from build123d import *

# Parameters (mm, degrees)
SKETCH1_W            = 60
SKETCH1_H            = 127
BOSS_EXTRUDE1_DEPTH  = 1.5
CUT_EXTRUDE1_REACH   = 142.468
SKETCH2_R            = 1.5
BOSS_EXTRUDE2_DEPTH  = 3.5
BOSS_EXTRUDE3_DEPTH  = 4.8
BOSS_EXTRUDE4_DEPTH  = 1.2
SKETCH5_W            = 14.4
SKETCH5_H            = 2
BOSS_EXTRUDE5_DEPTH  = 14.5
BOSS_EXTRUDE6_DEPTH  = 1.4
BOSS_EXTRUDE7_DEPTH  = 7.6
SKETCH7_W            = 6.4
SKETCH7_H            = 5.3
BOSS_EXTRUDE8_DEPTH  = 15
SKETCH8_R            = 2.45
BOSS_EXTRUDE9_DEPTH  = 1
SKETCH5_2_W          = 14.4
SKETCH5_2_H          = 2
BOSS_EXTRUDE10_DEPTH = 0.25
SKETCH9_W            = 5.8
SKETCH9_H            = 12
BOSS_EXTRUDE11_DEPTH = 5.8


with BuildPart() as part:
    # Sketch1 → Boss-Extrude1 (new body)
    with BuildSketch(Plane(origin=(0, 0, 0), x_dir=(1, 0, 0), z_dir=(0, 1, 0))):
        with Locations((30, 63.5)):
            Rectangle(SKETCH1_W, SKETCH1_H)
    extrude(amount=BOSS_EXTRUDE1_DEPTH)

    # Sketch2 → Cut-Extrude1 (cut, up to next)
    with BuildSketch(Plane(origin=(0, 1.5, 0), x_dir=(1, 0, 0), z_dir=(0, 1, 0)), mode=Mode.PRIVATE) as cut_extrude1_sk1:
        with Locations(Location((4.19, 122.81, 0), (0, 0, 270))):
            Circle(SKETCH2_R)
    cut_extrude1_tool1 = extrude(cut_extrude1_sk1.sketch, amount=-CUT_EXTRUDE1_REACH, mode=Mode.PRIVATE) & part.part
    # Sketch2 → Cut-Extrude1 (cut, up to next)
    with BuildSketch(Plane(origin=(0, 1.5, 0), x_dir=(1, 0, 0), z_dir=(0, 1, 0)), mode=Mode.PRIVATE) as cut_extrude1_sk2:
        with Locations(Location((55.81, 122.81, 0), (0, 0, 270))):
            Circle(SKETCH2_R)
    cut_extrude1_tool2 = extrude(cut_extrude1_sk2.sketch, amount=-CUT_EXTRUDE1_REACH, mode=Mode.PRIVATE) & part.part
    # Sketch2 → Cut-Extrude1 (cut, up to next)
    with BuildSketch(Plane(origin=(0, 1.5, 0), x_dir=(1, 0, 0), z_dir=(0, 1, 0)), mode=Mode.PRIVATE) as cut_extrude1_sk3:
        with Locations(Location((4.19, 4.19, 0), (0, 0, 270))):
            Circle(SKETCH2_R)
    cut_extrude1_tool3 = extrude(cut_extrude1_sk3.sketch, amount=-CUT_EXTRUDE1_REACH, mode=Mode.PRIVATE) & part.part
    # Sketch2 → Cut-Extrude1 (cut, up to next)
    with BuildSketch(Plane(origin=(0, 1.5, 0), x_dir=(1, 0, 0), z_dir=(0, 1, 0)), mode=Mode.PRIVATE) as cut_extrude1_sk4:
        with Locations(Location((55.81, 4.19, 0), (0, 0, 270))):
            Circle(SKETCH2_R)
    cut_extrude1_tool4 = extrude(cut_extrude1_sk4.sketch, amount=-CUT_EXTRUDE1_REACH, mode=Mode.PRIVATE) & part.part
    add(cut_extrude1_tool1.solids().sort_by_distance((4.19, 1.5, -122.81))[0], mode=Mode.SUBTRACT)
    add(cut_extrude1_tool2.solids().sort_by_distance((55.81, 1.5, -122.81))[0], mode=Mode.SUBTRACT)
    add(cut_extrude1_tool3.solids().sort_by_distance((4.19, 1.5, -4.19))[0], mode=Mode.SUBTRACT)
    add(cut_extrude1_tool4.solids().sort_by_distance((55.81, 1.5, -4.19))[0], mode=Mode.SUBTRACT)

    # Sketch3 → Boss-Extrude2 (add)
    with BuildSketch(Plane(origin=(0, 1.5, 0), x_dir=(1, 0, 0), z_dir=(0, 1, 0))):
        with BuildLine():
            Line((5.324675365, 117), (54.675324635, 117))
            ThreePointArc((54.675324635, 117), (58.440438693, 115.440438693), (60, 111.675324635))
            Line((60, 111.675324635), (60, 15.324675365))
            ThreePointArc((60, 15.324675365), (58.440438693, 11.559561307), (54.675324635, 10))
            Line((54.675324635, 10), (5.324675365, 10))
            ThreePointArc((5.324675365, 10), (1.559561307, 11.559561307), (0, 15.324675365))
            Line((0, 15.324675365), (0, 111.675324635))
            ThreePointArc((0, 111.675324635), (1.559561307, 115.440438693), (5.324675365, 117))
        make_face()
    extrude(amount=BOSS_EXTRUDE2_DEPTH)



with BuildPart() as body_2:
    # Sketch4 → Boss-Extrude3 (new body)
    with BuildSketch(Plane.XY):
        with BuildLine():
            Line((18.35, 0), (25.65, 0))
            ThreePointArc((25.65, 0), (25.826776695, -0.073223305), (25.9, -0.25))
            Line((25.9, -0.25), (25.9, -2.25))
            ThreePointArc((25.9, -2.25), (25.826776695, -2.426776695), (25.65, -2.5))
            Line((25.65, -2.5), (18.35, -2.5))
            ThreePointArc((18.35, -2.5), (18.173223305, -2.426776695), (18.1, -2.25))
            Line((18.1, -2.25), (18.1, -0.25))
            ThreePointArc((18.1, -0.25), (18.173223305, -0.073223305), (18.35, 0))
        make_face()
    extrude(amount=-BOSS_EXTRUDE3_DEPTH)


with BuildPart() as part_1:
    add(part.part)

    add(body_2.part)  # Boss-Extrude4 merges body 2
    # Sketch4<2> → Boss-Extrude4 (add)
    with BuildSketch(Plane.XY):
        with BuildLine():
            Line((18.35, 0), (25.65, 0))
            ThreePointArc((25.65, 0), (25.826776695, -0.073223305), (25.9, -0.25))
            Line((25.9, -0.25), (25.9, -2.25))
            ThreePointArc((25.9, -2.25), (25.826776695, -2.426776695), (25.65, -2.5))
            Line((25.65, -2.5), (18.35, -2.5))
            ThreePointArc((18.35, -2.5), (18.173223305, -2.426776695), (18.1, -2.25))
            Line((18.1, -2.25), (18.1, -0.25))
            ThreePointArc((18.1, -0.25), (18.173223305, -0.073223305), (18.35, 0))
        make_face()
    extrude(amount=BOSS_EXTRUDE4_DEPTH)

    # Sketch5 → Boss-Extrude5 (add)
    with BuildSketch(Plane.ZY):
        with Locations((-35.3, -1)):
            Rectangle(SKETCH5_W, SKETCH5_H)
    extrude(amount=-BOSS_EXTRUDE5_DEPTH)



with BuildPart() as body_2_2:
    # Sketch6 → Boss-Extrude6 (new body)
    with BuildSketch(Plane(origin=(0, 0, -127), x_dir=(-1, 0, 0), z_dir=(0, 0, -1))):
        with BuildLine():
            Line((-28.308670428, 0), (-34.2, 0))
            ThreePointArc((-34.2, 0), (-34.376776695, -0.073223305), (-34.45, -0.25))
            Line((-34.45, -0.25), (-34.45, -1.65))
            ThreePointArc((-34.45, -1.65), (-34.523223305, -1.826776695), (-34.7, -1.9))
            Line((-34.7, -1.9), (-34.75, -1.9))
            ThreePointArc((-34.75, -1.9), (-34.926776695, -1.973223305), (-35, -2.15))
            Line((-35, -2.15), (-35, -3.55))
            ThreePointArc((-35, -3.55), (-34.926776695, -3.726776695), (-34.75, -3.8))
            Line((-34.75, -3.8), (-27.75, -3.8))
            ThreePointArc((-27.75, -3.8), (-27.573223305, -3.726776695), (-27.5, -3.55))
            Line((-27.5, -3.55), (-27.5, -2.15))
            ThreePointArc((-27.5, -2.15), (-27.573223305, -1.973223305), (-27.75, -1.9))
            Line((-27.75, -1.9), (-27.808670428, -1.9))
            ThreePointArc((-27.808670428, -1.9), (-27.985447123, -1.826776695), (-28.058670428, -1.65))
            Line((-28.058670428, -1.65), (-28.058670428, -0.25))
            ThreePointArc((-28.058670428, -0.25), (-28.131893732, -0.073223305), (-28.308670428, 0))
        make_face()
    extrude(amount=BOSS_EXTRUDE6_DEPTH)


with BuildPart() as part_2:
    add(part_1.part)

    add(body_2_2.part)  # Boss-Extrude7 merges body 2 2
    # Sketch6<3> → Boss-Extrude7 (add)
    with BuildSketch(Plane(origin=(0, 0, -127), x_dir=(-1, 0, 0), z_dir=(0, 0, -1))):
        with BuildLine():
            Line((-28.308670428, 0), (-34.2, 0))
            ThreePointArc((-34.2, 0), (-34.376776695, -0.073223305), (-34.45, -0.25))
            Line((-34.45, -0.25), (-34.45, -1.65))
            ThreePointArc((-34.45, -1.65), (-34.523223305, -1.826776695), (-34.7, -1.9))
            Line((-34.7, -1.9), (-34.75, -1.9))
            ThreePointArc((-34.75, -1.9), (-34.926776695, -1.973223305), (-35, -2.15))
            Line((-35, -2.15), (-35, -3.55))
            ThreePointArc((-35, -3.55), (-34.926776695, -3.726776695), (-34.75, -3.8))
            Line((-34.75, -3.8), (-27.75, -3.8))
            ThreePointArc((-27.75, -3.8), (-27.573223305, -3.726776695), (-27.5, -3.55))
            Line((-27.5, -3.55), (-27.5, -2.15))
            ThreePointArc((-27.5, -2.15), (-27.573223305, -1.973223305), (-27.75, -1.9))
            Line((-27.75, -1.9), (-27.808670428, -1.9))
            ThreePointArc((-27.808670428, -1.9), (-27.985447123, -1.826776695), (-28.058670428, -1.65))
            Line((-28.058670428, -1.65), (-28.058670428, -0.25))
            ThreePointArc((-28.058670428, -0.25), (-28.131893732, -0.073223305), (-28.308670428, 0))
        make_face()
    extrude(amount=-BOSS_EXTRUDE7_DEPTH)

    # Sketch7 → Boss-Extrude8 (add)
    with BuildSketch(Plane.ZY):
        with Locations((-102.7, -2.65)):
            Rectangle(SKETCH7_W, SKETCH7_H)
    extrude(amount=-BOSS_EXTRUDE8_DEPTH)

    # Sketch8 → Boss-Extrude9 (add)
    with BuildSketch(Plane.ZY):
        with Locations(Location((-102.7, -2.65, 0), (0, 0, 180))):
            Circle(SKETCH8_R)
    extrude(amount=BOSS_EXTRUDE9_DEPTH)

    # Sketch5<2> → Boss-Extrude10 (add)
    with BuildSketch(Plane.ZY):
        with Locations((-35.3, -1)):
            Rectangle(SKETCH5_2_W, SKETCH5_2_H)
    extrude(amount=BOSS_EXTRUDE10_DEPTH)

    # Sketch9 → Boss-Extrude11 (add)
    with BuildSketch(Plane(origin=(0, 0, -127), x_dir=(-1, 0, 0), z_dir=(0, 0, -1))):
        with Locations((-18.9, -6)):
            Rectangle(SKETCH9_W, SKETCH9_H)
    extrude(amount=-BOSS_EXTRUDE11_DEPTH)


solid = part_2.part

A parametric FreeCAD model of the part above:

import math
import FreeCAD as App
import Part
import Sketcher

V = App.Vector

doc = App.newDocument("Part")
params = doc.addObject("Spreadsheet::Sheet", "Params")
for row, (alias, value) in enumerate([
    ("sketch1_width", "60 mm"),
    ("sketch1_height", "127 mm"),
    ("pad1_length", "1.5 mm"),
    ("sketch2_diameter", "3 mm"),
    ("sketch3_diameter", "3 mm"),
    ("sketch4_diameter", "3 mm"),
    ("sketch5_diameter", "3 mm"),
    ("pad2_length", "3.5 mm"),
    ("sketch7_height", "2 mm"),
    ("sketch7_radius", "0.25 mm"),
    ("sketch7_width", "7.3 mm"),
    ("pad3_length", "4.8 mm"),
    ("sketch8_height", "2 mm"),
    ("sketch8_radius", "0.25 mm"),
    ("sketch8_width", "7.3 mm"),
    ("pad4_length", "1.2 mm"),
    ("sketch9_width", "2 mm"),
    ("sketch9_height", "14.4 mm"),
    ("pad5_length", "14.5 mm"),
    ("sketch10_width", "7 mm"),
    ("sketch10_radius", "0.25 mm"),
    ("sketch10_height", "1.4 mm"),
    ("sketch10_width2", "0.05 mm"),
    ("pad6_length", "1.4 mm"),
    ("sketch11_width", "7 mm"),
    ("sketch11_radius", "0.25 mm"),
    ("sketch11_height", "1.4 mm"),
    ("sketch11_width2", "0.05 mm"),
    ("pad7_length", "7.6 mm"),
    ("sketch12_width", "5.3 mm"),
    ("sketch12_height", "6.4 mm"),
    ("pad8_length", "15 mm"),
    ("sketch13_diameter", "4.9 mm"),
    ("pad9_length", "1 mm"),
    ("sketch14_width", "2 mm"),
    ("sketch14_height", "14.4 mm"),
    ("pad10_length", "0.25 mm"),
    ("sketch15_height", "12 mm"),
    ("sketch15_width", "5.8 mm"),
    ("pad11_length", "5.8 mm"),
], start=1):
    params.set(f"A{row}", alias)
    params.set(f"B{row}", "=" + value)
    params.setAlias(f"B{row}", alias)

body = doc.addObject("PartDesign::Body", "Body")

# Sketch on XZ plane
sketch1 = doc.addObject("Sketcher::SketchObject", "Sketch")
body.addObject(sketch1)
sketch1.AttachmentSupport = (doc.XZ_Plane, [""])
sketch1.MapMode = "FlatFace"
sketch1.addGeometry(Part.LineSegment(V(0, -127, 0), V(0, 0, 0)), False)
sketch1.addGeometry(Part.LineSegment(V(0, 0, 0), V(60, 0, 0)), False)
sketch1.addGeometry(Part.LineSegment(V(60, 0, 0), V(60, -127, 0)), False)
sketch1.addGeometry(Part.LineSegment(V(60, -127, 0), V(0, -127, 0)), False)
sketch1.addConstraint(Sketcher.Constraint("Coincident", 0, 2, 1, 1))
sketch1.addConstraint(Sketcher.Constraint("Coincident", 1, 2, 2, 1))
sketch1.addConstraint(Sketcher.Constraint("Coincident", 2, 2, 3, 1))
sketch1.addConstraint(Sketcher.Constraint("Coincident", 3, 2, 0, 1))
sketch1.addConstraint(Sketcher.Constraint("Vertical", 0))
sketch1.addConstraint(Sketcher.Constraint("Horizontal", 1))
sketch1.addConstraint(Sketcher.Constraint("Vertical", 2))
sketch1.addConstraint(Sketcher.Constraint("Horizontal", 3))
sketch1.addConstraint(Sketcher.Constraint("Coincident", 0, 2, -1, 1))
sketch1.addConstraint(Sketcher.Constraint("DistanceX", 1, 1, 1, 2, 60.0))
sketch1.addConstraint(Sketcher.Constraint("DistanceY", 0, 1, 0, 2, 127.0))
sketch1.setExpression("Constraints[9]", "Params.sketch1_width")
sketch1.setExpression("Constraints[10]", "Params.sketch1_height")
pad1 = doc.addObject("PartDesign::Pad", "Pad")
body.addObject(pad1)
pad1.Profile = sketch1
pad1.setExpression("Length", "Params.pad1_length")
pad1.Reversed = True

# Sketch on XZ plane
sketch2 = doc.addObject("Sketcher::SketchObject", "Sketch001")
body.addObject(sketch2)
sketch2.AttachmentSupport = (doc.XZ_Plane, [""])
sketch2.MapMode = "FlatFace"
sketch2.AttachmentOffset = App.Placement(V(0, 0, -1.5), App.Rotation())
sketch2.addGeometry(Part.Circle(V(4.2, -122.8, 0), V(0, 0, 1), 1.5), False)
sketch2.addConstraint(Sketcher.Constraint("Diameter", 0, 3.0))
sketch2.addConstraint(Sketcher.Constraint("DistanceX", -1, 1, 0, 3, 4.19))
sketch2.addConstraint(Sketcher.Constraint("DistanceY", 0, 3, -1, 1, 122.81))
sketch2.setExpression("Constraints[0]", "Params.sketch2_diameter")
pocket1 = doc.addObject("PartDesign::Pocket", "Pocket")
body.addObject(pocket1)
pocket1.Profile = sketch2
pocket1.Type = "UpToFirst"
pocket1.Reversed = True

# Sketch on XZ plane
sketch3 = doc.addObject("Sketcher::SketchObject", "Sketch002")
body.addObject(sketch3)
sketch3.AttachmentSupport = (doc.XZ_Plane, [""])
sketch3.MapMode = "FlatFace"
sketch3.AttachmentOffset = App.Placement(V(0, 0, -1.5), App.Rotation())
sketch3.addGeometry(Part.Circle(V(55.8, -122.8, 0), V(0, 0, 1), 1.5), False)
sketch3.addConstraint(Sketcher.Constraint("Diameter", 0, 3.0))
sketch3.addConstraint(Sketcher.Constraint("DistanceX", -1, 1, 0, 3, 55.81))
sketch3.addConstraint(Sketcher.Constraint("DistanceY", 0, 3, -1, 1, 122.81))
sketch3.setExpression("Constraints[0]", "Params.sketch3_diameter")
pocket2 = doc.addObject("PartDesign::Pocket", "Pocket001")
body.addObject(pocket2)
pocket2.Profile = sketch3
pocket2.Type = "UpToFirst"
pocket2.Reversed = True

# Sketch on XZ plane
sketch4 = doc.addObject("Sketcher::SketchObject", "Sketch003")
body.addObject(sketch4)
sketch4.AttachmentSupport = (doc.XZ_Plane, [""])
sketch4.MapMode = "FlatFace"
sketch4.AttachmentOffset = App.Placement(V(0, 0, -1.5), App.Rotation())
sketch4.addGeometry(Part.Circle(V(4.2, -4.2, 0), V(0, 0, 1), 1.5), False)
sketch4.addConstraint(Sketcher.Constraint("Diameter", 0, 3.0))
sketch4.addConstraint(Sketcher.Constraint("DistanceX", -1, 1, 0, 3, 4.19))
sketch4.addConstraint(Sketcher.Constraint("DistanceY", 0, 3, -1, 1, 4.19))
sketch4.setExpression("Constraints[0]", "Params.sketch4_diameter")
pocket3 = doc.addObject("PartDesign::Pocket", "Pocket002")
body.addObject(pocket3)
pocket3.Profile = sketch4
pocket3.Type = "UpToFirst"
pocket3.Reversed = True

# Sketch on XZ plane
sketch5 = doc.addObject("Sketcher::SketchObject", "Sketch004")
body.addObject(sketch5)
sketch5.AttachmentSupport = (doc.XZ_Plane, [""])
sketch5.MapMode = "FlatFace"
sketch5.AttachmentOffset = App.Placement(V(0, 0, -1.5), App.Rotation())
sketch5.addGeometry(Part.Circle(V(55.8, -4.2, 0), V(0, 0, 1), 1.5), False)
sketch5.addConstraint(Sketcher.Constraint("Diameter", 0, 3.0))
sketch5.addConstraint(Sketcher.Constraint("DistanceX", -1, 1, 0, 3, 55.81))
sketch5.addConstraint(Sketcher.Constraint("DistanceY", 0, 3, -1, 1, 4.19))
sketch5.setExpression("Constraints[0]", "Params.sketch5_diameter")
pocket4 = doc.addObject("PartDesign::Pocket", "Pocket003")
body.addObject(pocket4)
pocket4.Profile = sketch5
pocket4.Type = "UpToFirst"
pocket4.Reversed = True

# Sketch on XZ plane
sketch6 = doc.addObject("Sketcher::SketchObject", "Sketch005")
body.addObject(sketch6)
sketch6.AttachmentSupport = (doc.XZ_Plane, [""])
sketch6.MapMode = "FlatFace"
sketch6.AttachmentOffset = App.Placement(V(0, 0, -1.5), App.Rotation())
sketch6.addGeometry(Part.LineSegment(V(55, -117, 0), V(5, -117, 0)), False)
sketch6.addGeometry(Part.ArcOfCircle(Part.Circle(V(5, -112, 0), V(0, 0, 1), 5), math.radians(-180), math.radians(-90)), False)
sketch6.addGeometry(Part.LineSegment(V(0, -112, 0), V(0, -15, 0)), False)
sketch6.addGeometry(Part.ArcOfCircle(Part.Circle(V(5, -15, 0), V(0, 0, 1), 5), math.radians(90), math.radians(180)), False)
sketch6.addGeometry(Part.LineSegment(V(5, -10, 0), V(55, -10, 0)), False)
sketch6.addGeometry(Part.ArcOfCircle(Part.Circle(V(55, -15, 0), V(0, 0, 1), 5), math.radians(0), math.radians(90)), False)
sketch6.addGeometry(Part.LineSegment(V(60, -15, 0), V(60, -112, 0)), False)
sketch6.addGeometry(Part.ArcOfCircle(Part.Circle(V(55, -112, 0), V(0, 0, 1), 5), math.radians(-90), math.radians(0)), False)
sketch6.addConstraint(Sketcher.Constraint("Tangent", 0, 2, 1, 2))
sketch6.addConstraint(Sketcher.Constraint("Tangent", 1, 1, 2, 1))
sketch6.addConstraint(Sketcher.Constraint("Tangent", 2, 2, 3, 2))
sketch6.addConstraint(Sketcher.Constraint("Tangent", 3, 1, 4, 1))
sketch6.addConstraint(Sketcher.Constraint("Tangent", 4, 2, 5, 2))
sketch6.addConstraint(Sketcher.Constraint("Tangent", 5, 1, 6, 1))
sketch6.addConstraint(Sketcher.Constraint("Tangent", 6, 2, 7, 2))
sketch6.addConstraint(Sketcher.Constraint("Tangent", 7, 1, 0, 1))
sketch6.addConstraint(Sketcher.Constraint("Horizontal", 0))
sketch6.addConstraint(Sketcher.Constraint("Vertical", 2))
sketch6.addConstraint(Sketcher.Constraint("Horizontal", 4))
sketch6.addConstraint(Sketcher.Constraint("Vertical", 6))
sketch6.addConstraint(Sketcher.Constraint("Equal", 1, 3))
sketch6.addConstraint(Sketcher.Constraint("Equal", 3, 5))
sketch6.addConstraint(Sketcher.Constraint("Equal", 5, 7))
sketch6.addConstraint(Sketcher.Constraint("PointOnObject", 1, 1, -2))
sketch6.addConstraint(Sketcher.Constraint("DistanceY", 0, 2, -1, 1, 117.0))
sketch6.addConstraint(Sketcher.Constraint("DistanceY", 3, 1, -1, 1, 10.0))
sketch6.addConstraint(Sketcher.Constraint("DistanceX", -1, 1, 5, 1, 60.0))
sketch6.addConstraint(Sketcher.Constraint("Radius", 1, 5.324675))
pad2 = doc.addObject("PartDesign::Pad", "Pad001")
body.addObject(pad2)
pad2.Profile = sketch6
pad2.setExpression("Length", "Params.pad2_length")
pad2.Reversed = True
body2 = doc.addObject("PartDesign::Body", "Body001")

# Sketch on XY plane
sketch7 = doc.addObject("Sketcher::SketchObject", "Sketch006")
body2.addObject(sketch7)
sketch7.AttachmentSupport = (doc.getObject("XY_Plane001"), [""])
sketch7.MapMode = "FlatFace"
sketch7.addGeometry(Part.LineSegment(V(25.65, 0, 0), V(18.35, 0, 0)), False)
sketch7.addGeometry(Part.ArcOfCircle(Part.Circle(V(18.35, -0.25, 0), V(0, 0, 1), 0.25), math.radians(90), math.radians(180)), False)
sketch7.addGeometry(Part.LineSegment(V(18.1, -0.25, 0), V(18.1, -2.25, 0)), False)
sketch7.addGeometry(Part.ArcOfCircle(Part.Circle(V(18.35, -2.25, 0), V(0, 0, 1), 0.25), math.radians(-180), math.radians(-90)), False)
sketch7.addGeometry(Part.LineSegment(V(18.35, -2.5, 0), V(25.65, -2.5, 0)), False)
sketch7.addGeometry(Part.ArcOfCircle(Part.Circle(V(25.65, -2.25, 0), V(0, 0, 1), 0.25), math.radians(-90), math.radians(0)), False)
sketch7.addGeometry(Part.LineSegment(V(25.9, -2.25, 0), V(25.9, -0.25, 0)), False)
sketch7.addGeometry(Part.ArcOfCircle(Part.Circle(V(25.65, -0.25, 0), V(0, 0, 1), 0.25), math.radians(0), math.radians(90)), False)
sketch7.addConstraint(Sketcher.Constraint("Tangent", 0, 2, 1, 1))
sketch7.addConstraint(Sketcher.Constraint("Tangent", 1, 2, 2, 1))
sketch7.addConstraint(Sketcher.Constraint("Tangent", 2, 2, 3, 1))
sketch7.addConstraint(Sketcher.Constraint("Tangent", 3, 2, 4, 1))
sketch7.addConstraint(Sketcher.Constraint("Tangent", 4, 2, 5, 1))
sketch7.addConstraint(Sketcher.Constraint("Tangent", 5, 2, 6, 1))
sketch7.addConstraint(Sketcher.Constraint("Tangent", 6, 2, 7, 1))
sketch7.addConstraint(Sketcher.Constraint("Tangent", 7, 2, 0, 1))
sketch7.addConstraint(Sketcher.Constraint("Horizontal", 0))
sketch7.addConstraint(Sketcher.Constraint("Vertical", 2))
sketch7.addConstraint(Sketcher.Constraint("Horizontal", 4))
sketch7.addConstraint(Sketcher.Constraint("Vertical", 6))
sketch7.addConstraint(Sketcher.Constraint("Equal", 1, 3))
sketch7.addConstraint(Sketcher.Constraint("Equal", 3, 5))
sketch7.addConstraint(Sketcher.Constraint("Equal", 5, 7))
sketch7.addConstraint(Sketcher.Constraint("PointOnObject", 0, 2, -1))
sketch7.addConstraint(Sketcher.Constraint("DistanceY", 2, 2, 2, 1, 2.0))
sketch7.addConstraint(Sketcher.Constraint("Radius", 1, 0.25))
sketch7.addConstraint(Sketcher.Constraint("DistanceX", 0, 2, 0, 1, 7.3))
sketch7.addConstraint(Sketcher.Constraint("DistanceX", -1, 1, 1, 2, 18.1))
sketch7.setExpression("Constraints[16]", "Params.sketch7_height")
sketch7.setExpression("Constraints[17]", "Params.sketch7_radius")
sketch7.setExpression("Constraints[18]", "Params.sketch7_width")
pad3 = doc.addObject("PartDesign::Pad", "Pad002")
body2.addObject(pad3)
pad3.Profile = sketch7
pad3.setExpression("Length", "Params.pad3_length")
pad3.Reversed = True
doc.recompute()

boolean = doc.addObject("PartDesign::Boolean", "Boolean")
body.addObject(boolean)
boolean.Type = "Fuse"
boolean.addObjects([body2])

# Sketch on XY plane
sketch8 = doc.addObject("Sketcher::SketchObject", "Sketch007")
body.addObject(sketch8)
sketch8.AttachmentSupport = (doc.XY_Plane, [""])
sketch8.MapMode = "FlatFace"
sketch8.addGeometry(Part.LineSegment(V(25.65, 0, 0), V(18.35, 0, 0)), False)
sketch8.addGeometry(Part.ArcOfCircle(Part.Circle(V(18.35, -0.25, 0), V(0, 0, 1), 0.25), math.radians(90), math.radians(180)), False)
sketch8.addGeometry(Part.LineSegment(V(18.1, -0.25, 0), V(18.1, -2.25, 0)), False)
sketch8.addGeometry(Part.ArcOfCircle(Part.Circle(V(18.35, -2.25, 0), V(0, 0, 1), 0.25), math.radians(-180), math.radians(-90)), False)
sketch8.addGeometry(Part.LineSegment(V(18.35, -2.5, 0), V(25.65, -2.5, 0)), False)
sketch8.addGeometry(Part.ArcOfCircle(Part.Circle(V(25.65, -2.25, 0), V(0, 0, 1), 0.25), math.radians(-90), math.radians(0)), False)
sketch8.addGeometry(Part.LineSegment(V(25.9, -2.25, 0), V(25.9, -0.25, 0)), False)
sketch8.addGeometry(Part.ArcOfCircle(Part.Circle(V(25.65, -0.25, 0), V(0, 0, 1), 0.25), math.radians(0), math.radians(90)), False)
sketch8.addConstraint(Sketcher.Constraint("Tangent", 0, 2, 1, 1))
sketch8.addConstraint(Sketcher.Constraint("Tangent", 1, 2, 2, 1))
sketch8.addConstraint(Sketcher.Constraint("Tangent", 2, 2, 3, 1))
sketch8.addConstraint(Sketcher.Constraint("Tangent", 3, 2, 4, 1))
sketch8.addConstraint(Sketcher.Constraint("Tangent", 4, 2, 5, 1))
sketch8.addConstraint(Sketcher.Constraint("Tangent", 5, 2, 6, 1))
sketch8.addConstraint(Sketcher.Constraint("Tangent", 6, 2, 7, 1))
sketch8.addConstraint(Sketcher.Constraint("Tangent", 7, 2, 0, 1))
sketch8.addConstraint(Sketcher.Constraint("Horizontal", 0))
sketch8.addConstraint(Sketcher.Constraint("Vertical", 2))
sketch8.addConstraint(Sketcher.Constraint("Horizontal", 4))
sketch8.addConstraint(Sketcher.Constraint("Vertical", 6))
sketch8.addConstraint(Sketcher.Constraint("Equal", 1, 3))
sketch8.addConstraint(Sketcher.Constraint("Equal", 3, 5))
sketch8.addConstraint(Sketcher.Constraint("Equal", 5, 7))
sketch8.addConstraint(Sketcher.Constraint("PointOnObject", 0, 2, -1))
sketch8.addConstraint(Sketcher.Constraint("DistanceY", 2, 2, 2, 1, 2.0))
sketch8.addConstraint(Sketcher.Constraint("Radius", 1, 0.25))
sketch8.addConstraint(Sketcher.Constraint("DistanceX", 0, 2, 0, 1, 7.3))
sketch8.addConstraint(Sketcher.Constraint("DistanceX", -1, 1, 1, 2, 18.1))
sketch8.setExpression("Constraints[16]", "Params.sketch8_height")
sketch8.setExpression("Constraints[17]", "Params.sketch8_radius")
sketch8.setExpression("Constraints[18]", "Params.sketch8_width")
pad4 = doc.addObject("PartDesign::Pad", "Pad003")
body.addObject(pad4)
pad4.Profile = sketch8
pad4.setExpression("Length", "Params.pad4_length")

# Sketch on YZ plane
sketch9 = doc.addObject("Sketcher::SketchObject", "Sketch008")
body.addObject(sketch9)
sketch9.AttachmentSupport = (doc.YZ_Plane, [""])
sketch9.MapMode = "FlatFace"
sketch9.addGeometry(Part.LineSegment(V(0, -42.5, 0), V(-2, -42.5, 0)), False)
sketch9.addGeometry(Part.LineSegment(V(-2, -42.5, 0), V(-2, -28.1, 0)), False)
sketch9.addGeometry(Part.LineSegment(V(-2, -28.1, 0), V(0, -28.1, 0)), False)
sketch9.addGeometry(Part.LineSegment(V(0, -28.1, 0), V(0, -42.5, 0)), False)
sketch9.addConstraint(Sketcher.Constraint("Coincident", 0, 2, 1, 1))
sketch9.addConstraint(Sketcher.Constraint("Coincident", 1, 2, 2, 1))
sketch9.addConstraint(Sketcher.Constraint("Coincident", 2, 2, 3, 1))
sketch9.addConstraint(Sketcher.Constraint("Coincident", 3, 2, 0, 1))
sketch9.addConstraint(Sketcher.Constraint("Horizontal", 0))
sketch9.addConstraint(Sketcher.Constraint("Vertical", 1))
sketch9.addConstraint(Sketcher.Constraint("Horizontal", 2))
sketch9.addConstraint(Sketcher.Constraint("Vertical", 3))
sketch9.addConstraint(Sketcher.Constraint("PointOnObject", 2, 2, -2))
sketch9.addConstraint(Sketcher.Constraint("DistanceX", 0, 2, 0, 1, 2.0))
sketch9.addConstraint(Sketcher.Constraint("DistanceY", 1, 1, 1, 2, 14.4))
sketch9.addConstraint(Sketcher.Constraint("DistanceY", 0, 2, -1, 1, 42.5))
sketch9.setExpression("Constraints[9]", "Params.sketch9_width")
sketch9.setExpression("Constraints[10]", "Params.sketch9_height")
pad5 = doc.addObject("PartDesign::Pad", "Pad004")
body.addObject(pad5)
pad5.Profile = sketch9
pad5.setExpression("Length", "Params.pad5_length")
body3 = doc.addObject("PartDesign::Body", "Body002")

# Sketch on XY plane
sketch10 = doc.addObject("Sketcher::SketchObject", "Sketch009")
body3.addObject(sketch10)
sketch10.AttachmentSupport = (doc.getObject("XY_Plane002"), [""])
sketch10.MapMode = "FlatFace"
sketch10.AttachmentOffset = App.Placement(V(0, 0, -127), App.Rotation())
sketch10.addGeometry(Part.LineSegment(V(28.309, 0, 0), V(34.2, 0, 0)), False)
sketch10.addGeometry(Part.ArcOfCircle(Part.Circle(V(34.2, -0.25, 0), V(0, 0, 1), 0.25), math.radians(0), math.radians(90)), False)
sketch10.addGeometry(Part.LineSegment(V(34.45, -0.25, 0), V(34.45, -1.65, 0)), False)
sketch10.addGeometry(Part.ArcOfCircle(Part.Circle(V(34.7, -1.65, 0), V(0, 0, 1), 0.25), math.radians(-180), math.radians(-90)), False)
sketch10.addGeometry(Part.LineSegment(V(34.7, -1.9, 0), V(34.75, -1.9, 0)), False)
sketch10.addGeometry(Part.ArcOfCircle(Part.Circle(V(34.75, -2.15, 0), V(0, 0, 1), 0.25), math.radians(0), math.radians(90)), False)
sketch10.addGeometry(Part.LineSegment(V(35, -2.15, 0), V(35, -3.55, 0)), False)
sketch10.addGeometry(Part.ArcOfCircle(Part.Circle(V(34.75, -3.55, 0), V(0, 0, 1), 0.25), math.radians(-90), math.radians(0)), False)
sketch10.addGeometry(Part.LineSegment(V(34.75, -3.8, 0), V(27.75, -3.8, 0)), False)
sketch10.addGeometry(Part.ArcOfCircle(Part.Circle(V(27.75, -3.55, 0), V(0, 0, 1), 0.25), math.radians(-180), math.radians(-90)), False)
sketch10.addGeometry(Part.LineSegment(V(27.5, -3.55, 0), V(27.5, -2.15, 0)), False)
sketch10.addGeometry(Part.ArcOfCircle(Part.Circle(V(27.75, -2.15, 0), V(0, 0, 1), 0.25), math.radians(90), math.radians(180)), False)
sketch10.addGeometry(Part.LineSegment(V(27.75, -1.9, 0), V(27.809, -1.9, 0)), False)
sketch10.addGeometry(Part.ArcOfCircle(Part.Circle(V(27.809, -1.65, 0), V(0, 0, 1), 0.25), math.radians(-90), math.radians(0)), False)
sketch10.addGeometry(Part.LineSegment(V(28.059, -1.65, 0), V(28.059, -0.25, 0)), False)
sketch10.addGeometry(Part.ArcOfCircle(Part.Circle(V(28.309, -0.25, 0), V(0, 0, 1), 0.25), math.radians(90), math.radians(180)), False)
sketch10.addConstraint(Sketcher.Constraint("Tangent", 0, 2, 1, 2))
sketch10.addConstraint(Sketcher.Constraint("Tangent", 1, 1, 2, 1))
sketch10.addConstraint(Sketcher.Constraint("Tangent", 2, 2, 3, 1))
sketch10.addConstraint(Sketcher.Constraint("Tangent", 3, 2, 4, 1))
sketch10.addConstraint(Sketcher.Constraint("Tangent", 4, 2, 5, 2))
sketch10.addConstraint(Sketcher.Constraint("Tangent", 5, 1, 6, 1))
sketch10.addConstraint(Sketcher.Constraint("Tangent", 6, 2, 7, 2))
sketch10.addConstraint(Sketcher.Constraint("Tangent", 7, 1, 8, 1))
sketch10.addConstraint(Sketcher.Constraint("Tangent", 8, 2, 9, 2))
sketch10.addConstraint(Sketcher.Constraint("Tangent", 9, 1, 10, 1))
sketch10.addConstraint(Sketcher.Constraint("Tangent", 10, 2, 11, 2))
sketch10.addConstraint(Sketcher.Constraint("Tangent", 11, 1, 12, 1))
sketch10.addConstraint(Sketcher.Constraint("Tangent", 12, 2, 13, 1))
sketch10.addConstraint(Sketcher.Constraint("Tangent", 13, 2, 14, 1))
sketch10.addConstraint(Sketcher.Constraint("Tangent", 14, 2, 15, 2))
sketch10.addConstraint(Sketcher.Constraint("Tangent", 15, 1, 0, 1))
sketch10.addConstraint(Sketcher.Constraint("Horizontal", 0))
sketch10.addConstraint(Sketcher.Constraint("Vertical", 2))
sketch10.addConstraint(Sketcher.Constraint("Horizontal", 4))
sketch10.addConstraint(Sketcher.Constraint("Vertical", 6))
sketch10.addConstraint(Sketcher.Constraint("Horizontal", 8))
sketch10.addConstraint(Sketcher.Constraint("Vertical", 10))
sketch10.addConstraint(Sketcher.Constraint("Horizontal", 12))
sketch10.addConstraint(Sketcher.Constraint("Vertical", 14))
sketch10.addConstraint(Sketcher.Constraint("Equal", 1, 3))
sketch10.addConstraint(Sketcher.Constraint("Equal", 3, 5))
sketch10.addConstraint(Sketcher.Constraint("Equal", 5, 7))
sketch10.addConstraint(Sketcher.Constraint("Equal", 7, 9))
sketch10.addConstraint(Sketcher.Constraint("Equal", 9, 11))
sketch10.addConstraint(Sketcher.Constraint("Equal", 11, 13))
sketch10.addConstraint(Sketcher.Constraint("Equal", 13, 15))
sketch10.addConstraint(Sketcher.Constraint("PointOnObject", 0, 2, -1))
sketch10.addConstraint(Sketcher.Constraint("Horizontal", 5, 3, 11, 3))
sketch10.addConstraint(Sketcher.Constraint("Equal", 2, 6))
sketch10.addConstraint(Sketcher.Constraint("DistanceX", 8, 2, 8, 1, 7.0))
sketch10.addConstraint(Sketcher.Constraint("Radius", 1, 0.25))
sketch10.addConstraint(Sketcher.Constraint("DistanceY", 2, 2, 2, 1, 1.4))
sketch10.addConstraint(Sketcher.Constraint("DistanceX", -1, 1, 5, 1, 35.0))
sketch10.addConstraint(Sketcher.Constraint("DistanceX", 4, 1, 4, 2, 0.05))
sketch10.addConstraint(Sketcher.Constraint("DistanceX", 0, 1, 0, 2, 5.89133))
sketch10.setExpression("Constraints[34]", "Params.sketch10_width")
sketch10.setExpression("Constraints[35]", "Params.sketch10_radius")
sketch10.setExpression("Constraints[36]", "Params.sketch10_height")
sketch10.setExpression("Constraints[38]", "Params.sketch10_width2")
pad6 = doc.addObject("PartDesign::Pad", "Pad005")
body3.addObject(pad6)
pad6.Profile = sketch10
pad6.setExpression("Length", "Params.pad6_length")
pad6.Reversed = True
body.AllowCompound = True
doc.recompute()

boolean2 = doc.addObject("PartDesign::Boolean", "Boolean001")
body.addObject(boolean2)
boolean2.Type = "Fuse"
boolean2.addObjects([body3])

# Sketch on XY plane
sketch11 = doc.addObject("Sketcher::SketchObject", "Sketch010")
body.addObject(sketch11)
sketch11.AttachmentSupport = (doc.XY_Plane, [""])
sketch11.MapMode = "FlatFace"
sketch11.AttachmentOffset = App.Placement(V(0, 0, -127), App.Rotation())
sketch11.addGeometry(Part.LineSegment(V(28.309, 0, 0), V(34.2, 0, 0)), False)
sketch11.addGeometry(Part.ArcOfCircle(Part.Circle(V(34.2, -0.25, 0), V(0, 0, 1), 0.25), math.radians(0), math.radians(90)), False)
sketch11.addGeometry(Part.LineSegment(V(34.45, -0.25, 0), V(34.45, -1.65, 0)), False)
sketch11.addGeometry(Part.ArcOfCircle(Part.Circle(V(34.7, -1.65, 0), V(0, 0, 1), 0.25), math.radians(-180), math.radians(-90)), False)
sketch11.addGeometry(Part.LineSegment(V(34.7, -1.9, 0), V(34.75, -1.9, 0)), False)
sketch11.addGeometry(Part.ArcOfCircle(Part.Circle(V(34.75, -2.15, 0), V(0, 0, 1), 0.25), math.radians(0), math.radians(90)), False)
sketch11.addGeometry(Part.LineSegment(V(35, -2.15, 0), V(35, -3.55, 0)), False)
sketch11.addGeometry(Part.ArcOfCircle(Part.Circle(V(34.75, -3.55, 0), V(0, 0, 1), 0.25), math.radians(-90), math.radians(0)), False)
sketch11.addGeometry(Part.LineSegment(V(34.75, -3.8, 0), V(27.75, -3.8, 0)), False)
sketch11.addGeometry(Part.ArcOfCircle(Part.Circle(V(27.75, -3.55, 0), V(0, 0, 1), 0.25), math.radians(-180), math.radians(-90)), False)
sketch11.addGeometry(Part.LineSegment(V(27.5, -3.55, 0), V(27.5, -2.15, 0)), False)
sketch11.addGeometry(Part.ArcOfCircle(Part.Circle(V(27.75, -2.15, 0), V(0, 0, 1), 0.25), math.radians(90), math.radians(180)), False)
sketch11.addGeometry(Part.LineSegment(V(27.75, -1.9, 0), V(27.809, -1.9, 0)), False)
sketch11.addGeometry(Part.ArcOfCircle(Part.Circle(V(27.809, -1.65, 0), V(0, 0, 1), 0.25), math.radians(-90), math.radians(0)), False)
sketch11.addGeometry(Part.LineSegment(V(28.059, -1.65, 0), V(28.059, -0.25, 0)), False)
sketch11.addGeometry(Part.ArcOfCircle(Part.Circle(V(28.309, -0.25, 0), V(0, 0, 1), 0.25), math.radians(90), math.radians(180)), False)
sketch11.addConstraint(Sketcher.Constraint("Tangent", 0, 2, 1, 2))
sketch11.addConstraint(Sketcher.Constraint("Tangent", 1, 1, 2, 1))
sketch11.addConstraint(Sketcher.Constraint("Tangent", 2, 2, 3, 1))
sketch11.addConstraint(Sketcher.Constraint("Tangent", 3, 2, 4, 1))
sketch11.addConstraint(Sketcher.Constraint("Tangent", 4, 2, 5, 2))
sketch11.addConstraint(Sketcher.Constraint("Tangent", 5, 1, 6, 1))
sketch11.addConstraint(Sketcher.Constraint("Tangent", 6, 2, 7, 2))
sketch11.addConstraint(Sketcher.Constraint("Tangent", 7, 1, 8, 1))
sketch11.addConstraint(Sketcher.Constraint("Tangent", 8, 2, 9, 2))
sketch11.addConstraint(Sketcher.Constraint("Tangent", 9, 1, 10, 1))
sketch11.addConstraint(Sketcher.Constraint("Tangent", 10, 2, 11, 2))
sketch11.addConstraint(Sketcher.Constraint("Tangent", 11, 1, 12, 1))
sketch11.addConstraint(Sketcher.Constraint("Tangent", 12, 2, 13, 1))
sketch11.addConstraint(Sketcher.Constraint("Tangent", 13, 2, 14, 1))
sketch11.addConstraint(Sketcher.Constraint("Tangent", 14, 2, 15, 2))
sketch11.addConstraint(Sketcher.Constraint("Tangent", 15, 1, 0, 1))
sketch11.addConstraint(Sketcher.Constraint("Horizontal", 0))
sketch11.addConstraint(Sketcher.Constraint("Vertical", 2))
sketch11.addConstraint(Sketcher.Constraint("Horizontal", 4))
sketch11.addConstraint(Sketcher.Constraint("Vertical", 6))
sketch11.addConstraint(Sketcher.Constraint("Horizontal", 8))
sketch11.addConstraint(Sketcher.Constraint("Vertical", 10))
sketch11.addConstraint(Sketcher.Constraint("Horizontal", 12))
sketch11.addConstraint(Sketcher.Constraint("Vertical", 14))
sketch11.addConstraint(Sketcher.Constraint("Equal", 1, 3))
sketch11.addConstraint(Sketcher.Constraint("Equal", 3, 5))
sketch11.addConstraint(Sketcher.Constraint("Equal", 5, 7))
sketch11.addConstraint(Sketcher.Constraint("Equal", 7, 9))
sketch11.addConstraint(Sketcher.Constraint("Equal", 9, 11))
sketch11.addConstraint(Sketcher.Constraint("Equal", 11, 13))
sketch11.addConstraint(Sketcher.Constraint("Equal", 13, 15))
sketch11.addConstraint(Sketcher.Constraint("PointOnObject", 0, 2, -1))
sketch11.addConstraint(Sketcher.Constraint("Horizontal", 5, 3, 11, 3))
sketch11.addConstraint(Sketcher.Constraint("Equal", 2, 6))
sketch11.addConstraint(Sketcher.Constraint("DistanceX", 8, 2, 8, 1, 7.0))
sketch11.addConstraint(Sketcher.Constraint("Radius", 1, 0.25))
sketch11.addConstraint(Sketcher.Constraint("DistanceY", 2, 2, 2, 1, 1.4))
sketch11.addConstraint(Sketcher.Constraint("DistanceX", -1, 1, 5, 1, 35.0))
sketch11.addConstraint(Sketcher.Constraint("DistanceX", 4, 1, 4, 2, 0.05))
sketch11.addConstraint(Sketcher.Constraint("DistanceX", 0, 1, 0, 2, 5.89133))
sketch11.setExpression("Constraints[34]", "Params.sketch11_width")
sketch11.setExpression("Constraints[35]", "Params.sketch11_radius")
sketch11.setExpression("Constraints[36]", "Params.sketch11_height")
sketch11.setExpression("Constraints[38]", "Params.sketch11_width2")
pad7 = doc.addObject("PartDesign::Pad", "Pad006")
body.addObject(pad7)
pad7.Profile = sketch11
pad7.setExpression("Length", "Params.pad7_length")

# Sketch on YZ plane
sketch12 = doc.addObject("Sketcher::SketchObject", "Sketch011")
body.addObject(sketch12)
sketch12.AttachmentSupport = (doc.YZ_Plane, [""])
sketch12.MapMode = "FlatFace"
sketch12.addGeometry(Part.LineSegment(V(0, -106, 0), V(-5, -106, 0)), False)
sketch12.addGeometry(Part.LineSegment(V(-5, -106, 0), V(-5, -100, 0)), False)
sketch12.addGeometry(Part.LineSegment(V(-5, -100, 0), V(0, -100, 0)), False)
sketch12.addGeometry(Part.LineSegment(V(0, -100, 0), V(0, -106, 0)), False)
sketch12.addConstraint(Sketcher.Constraint("Coincident", 0, 2, 1, 1))
sketch12.addConstraint(Sketcher.Constraint("Coincident", 1, 2, 2, 1))
sketch12.addConstraint(Sketcher.Constraint("Coincident", 2, 2, 3, 1))
sketch12.addConstraint(Sketcher.Constraint("Coincident", 3, 2, 0, 1))
sketch12.addConstraint(Sketcher.Constraint("Horizontal", 0))
sketch12.addConstraint(Sketcher.Constraint("Vertical", 1))
sketch12.addConstraint(Sketcher.Constraint("Horizontal", 2))
sketch12.addConstraint(Sketcher.Constraint("Vertical", 3))
sketch12.addConstraint(Sketcher.Constraint("PointOnObject", 2, 2, -2))
sketch12.addConstraint(Sketcher.Constraint("DistanceX", 0, 2, 0, 1, 5.3))
sketch12.addConstraint(Sketcher.Constraint("DistanceY", 1, 1, 1, 2, 6.4))
sketch12.addConstraint(Sketcher.Constraint("DistanceY", 0, 2, -1, 1, 105.9))
sketch12.setExpression("Constraints[9]", "Params.sketch12_width")
sketch12.setExpression("Constraints[10]", "Params.sketch12_height")
pad8 = doc.addObject("PartDesign::Pad", "Pad007")
body.addObject(pad8)
pad8.Profile = sketch12
pad8.setExpression("Length", "Params.pad8_length")

# Sketch on YZ plane
sketch13 = doc.addObject("Sketcher::SketchObject", "Sketch012")
body.addObject(sketch13)
sketch13.AttachmentSupport = (doc.YZ_Plane, [""])
sketch13.MapMode = "FlatFace"
sketch13.addGeometry(Part.Circle(V(-2.6, -102.7, 0), V(0, 0, 1), 2.5), False)
sketch13.addConstraint(Sketcher.Constraint("Diameter", 0, 4.9))
sketch13.addConstraint(Sketcher.Constraint("DistanceY", 0, 3, -1, 1, 102.7))
sketch13.addConstraint(Sketcher.Constraint("DistanceX", 0, 3, -1, 1, 2.65))
sketch13.setExpression("Constraints[0]", "Params.sketch13_diameter")
pad9 = doc.addObject("PartDesign::Pad", "Pad008")
body.addObject(pad9)
pad9.Profile = sketch13
pad9.setExpression("Length", "Params.pad9_length")
pad9.Reversed = True

# Sketch on YZ plane
sketch14 = doc.addObject("Sketcher::SketchObject", "Sketch013")
body.addObject(sketch14)
sketch14.AttachmentSupport = (doc.YZ_Plane, [""])
sketch14.MapMode = "FlatFace"
sketch14.addGeometry(Part.LineSegment(V(0, -42.5, 0), V(-2, -42.5, 0)), False)
sketch14.addGeometry(Part.LineSegment(V(-2, -42.5, 0), V(-2, -28.1, 0)), False)
sketch14.addGeometry(Part.LineSegment(V(-2, -28.1, 0), V(0, -28.1, 0)), False)
sketch14.addGeometry(Part.LineSegment(V(0, -28.1, 0), V(0, -42.5, 0)), False)
sketch14.addConstraint(Sketcher.Constraint("Coincident", 0, 2, 1, 1))
sketch14.addConstraint(Sketcher.Constraint("Coincident", 1, 2, 2, 1))
sketch14.addConstraint(Sketcher.Constraint("Coincident", 2, 2, 3, 1))
sketch14.addConstraint(Sketcher.Constraint("Coincident", 3, 2, 0, 1))
sketch14.addConstraint(Sketcher.Constraint("Horizontal", 0))
sketch14.addConstraint(Sketcher.Constraint("Vertical", 1))
sketch14.addConstraint(Sketcher.Constraint("Horizontal", 2))
sketch14.addConstraint(Sketcher.Constraint("Vertical", 3))
sketch14.addConstraint(Sketcher.Constraint("PointOnObject", 2, 2, -2))
sketch14.addConstraint(Sketcher.Constraint("DistanceX", 0, 2, 0, 1, 2.0))
sketch14.addConstraint(Sketcher.Constraint("DistanceY", 1, 1, 1, 2, 14.4))
sketch14.addConstraint(Sketcher.Constraint("DistanceY", 0, 2, -1, 1, 42.5))
sketch14.setExpression("Constraints[9]", "Params.sketch14_width")
sketch14.setExpression("Constraints[10]", "Params.sketch14_height")
pad10 = doc.addObject("PartDesign::Pad", "Pad009")
body.addObject(pad10)
pad10.Profile = sketch14
pad10.setExpression("Length", "Params.pad10_length")
pad10.Reversed = True

# Sketch on XY plane
sketch15 = doc.addObject("Sketcher::SketchObject", "Sketch014")
body.addObject(sketch15)
sketch15.AttachmentSupport = (doc.XY_Plane, [""])
sketch15.MapMode = "FlatFace"
sketch15.AttachmentOffset = App.Placement(V(0, 0, -127), App.Rotation())
sketch15.addGeometry(Part.LineSegment(V(22, 0, 0), V(22, -12, 0)), False)
sketch15.addGeometry(Part.LineSegment(V(22, -12, 0), V(16, -12, 0)), False)
sketch15.addGeometry(Part.LineSegment(V(16, -12, 0), V(16, 0, 0)), False)
sketch15.addGeometry(Part.LineSegment(V(16, 0, 0), V(22, 0, 0)), False)
sketch15.addConstraint(Sketcher.Constraint("Coincident", 0, 2, 1, 1))
sketch15.addConstraint(Sketcher.Constraint("Coincident", 1, 2, 2, 1))
sketch15.addConstraint(Sketcher.Constraint("Coincident", 2, 2, 3, 1))
sketch15.addConstraint(Sketcher.Constraint("Coincident", 3, 2, 0, 1))
sketch15.addConstraint(Sketcher.Constraint("Vertical", 0))
sketch15.addConstraint(Sketcher.Constraint("Horizontal", 1))
sketch15.addConstraint(Sketcher.Constraint("Vertical", 2))
sketch15.addConstraint(Sketcher.Constraint("Horizontal", 3))
sketch15.addConstraint(Sketcher.Constraint("PointOnObject", 2, 2, -1))
sketch15.addConstraint(Sketcher.Constraint("DistanceY", 0, 2, 0, 1, 12.0))
sketch15.addConstraint(Sketcher.Constraint("DistanceX", 1, 2, 1, 1, 5.8))
sketch15.addConstraint(Sketcher.Constraint("DistanceX", -1, 1, 1, 2, 16.0))
sketch15.setExpression("Constraints[9]", "Params.sketch15_height")
sketch15.setExpression("Constraints[10]", "Params.sketch15_width")
pad11 = doc.addObject("PartDesign::Pad", "Pad010")
body.addObject(pad11)
pad11.Profile = sketch15
pad11.setExpression("Length", "Params.pad11_length")

doc.recompute()
